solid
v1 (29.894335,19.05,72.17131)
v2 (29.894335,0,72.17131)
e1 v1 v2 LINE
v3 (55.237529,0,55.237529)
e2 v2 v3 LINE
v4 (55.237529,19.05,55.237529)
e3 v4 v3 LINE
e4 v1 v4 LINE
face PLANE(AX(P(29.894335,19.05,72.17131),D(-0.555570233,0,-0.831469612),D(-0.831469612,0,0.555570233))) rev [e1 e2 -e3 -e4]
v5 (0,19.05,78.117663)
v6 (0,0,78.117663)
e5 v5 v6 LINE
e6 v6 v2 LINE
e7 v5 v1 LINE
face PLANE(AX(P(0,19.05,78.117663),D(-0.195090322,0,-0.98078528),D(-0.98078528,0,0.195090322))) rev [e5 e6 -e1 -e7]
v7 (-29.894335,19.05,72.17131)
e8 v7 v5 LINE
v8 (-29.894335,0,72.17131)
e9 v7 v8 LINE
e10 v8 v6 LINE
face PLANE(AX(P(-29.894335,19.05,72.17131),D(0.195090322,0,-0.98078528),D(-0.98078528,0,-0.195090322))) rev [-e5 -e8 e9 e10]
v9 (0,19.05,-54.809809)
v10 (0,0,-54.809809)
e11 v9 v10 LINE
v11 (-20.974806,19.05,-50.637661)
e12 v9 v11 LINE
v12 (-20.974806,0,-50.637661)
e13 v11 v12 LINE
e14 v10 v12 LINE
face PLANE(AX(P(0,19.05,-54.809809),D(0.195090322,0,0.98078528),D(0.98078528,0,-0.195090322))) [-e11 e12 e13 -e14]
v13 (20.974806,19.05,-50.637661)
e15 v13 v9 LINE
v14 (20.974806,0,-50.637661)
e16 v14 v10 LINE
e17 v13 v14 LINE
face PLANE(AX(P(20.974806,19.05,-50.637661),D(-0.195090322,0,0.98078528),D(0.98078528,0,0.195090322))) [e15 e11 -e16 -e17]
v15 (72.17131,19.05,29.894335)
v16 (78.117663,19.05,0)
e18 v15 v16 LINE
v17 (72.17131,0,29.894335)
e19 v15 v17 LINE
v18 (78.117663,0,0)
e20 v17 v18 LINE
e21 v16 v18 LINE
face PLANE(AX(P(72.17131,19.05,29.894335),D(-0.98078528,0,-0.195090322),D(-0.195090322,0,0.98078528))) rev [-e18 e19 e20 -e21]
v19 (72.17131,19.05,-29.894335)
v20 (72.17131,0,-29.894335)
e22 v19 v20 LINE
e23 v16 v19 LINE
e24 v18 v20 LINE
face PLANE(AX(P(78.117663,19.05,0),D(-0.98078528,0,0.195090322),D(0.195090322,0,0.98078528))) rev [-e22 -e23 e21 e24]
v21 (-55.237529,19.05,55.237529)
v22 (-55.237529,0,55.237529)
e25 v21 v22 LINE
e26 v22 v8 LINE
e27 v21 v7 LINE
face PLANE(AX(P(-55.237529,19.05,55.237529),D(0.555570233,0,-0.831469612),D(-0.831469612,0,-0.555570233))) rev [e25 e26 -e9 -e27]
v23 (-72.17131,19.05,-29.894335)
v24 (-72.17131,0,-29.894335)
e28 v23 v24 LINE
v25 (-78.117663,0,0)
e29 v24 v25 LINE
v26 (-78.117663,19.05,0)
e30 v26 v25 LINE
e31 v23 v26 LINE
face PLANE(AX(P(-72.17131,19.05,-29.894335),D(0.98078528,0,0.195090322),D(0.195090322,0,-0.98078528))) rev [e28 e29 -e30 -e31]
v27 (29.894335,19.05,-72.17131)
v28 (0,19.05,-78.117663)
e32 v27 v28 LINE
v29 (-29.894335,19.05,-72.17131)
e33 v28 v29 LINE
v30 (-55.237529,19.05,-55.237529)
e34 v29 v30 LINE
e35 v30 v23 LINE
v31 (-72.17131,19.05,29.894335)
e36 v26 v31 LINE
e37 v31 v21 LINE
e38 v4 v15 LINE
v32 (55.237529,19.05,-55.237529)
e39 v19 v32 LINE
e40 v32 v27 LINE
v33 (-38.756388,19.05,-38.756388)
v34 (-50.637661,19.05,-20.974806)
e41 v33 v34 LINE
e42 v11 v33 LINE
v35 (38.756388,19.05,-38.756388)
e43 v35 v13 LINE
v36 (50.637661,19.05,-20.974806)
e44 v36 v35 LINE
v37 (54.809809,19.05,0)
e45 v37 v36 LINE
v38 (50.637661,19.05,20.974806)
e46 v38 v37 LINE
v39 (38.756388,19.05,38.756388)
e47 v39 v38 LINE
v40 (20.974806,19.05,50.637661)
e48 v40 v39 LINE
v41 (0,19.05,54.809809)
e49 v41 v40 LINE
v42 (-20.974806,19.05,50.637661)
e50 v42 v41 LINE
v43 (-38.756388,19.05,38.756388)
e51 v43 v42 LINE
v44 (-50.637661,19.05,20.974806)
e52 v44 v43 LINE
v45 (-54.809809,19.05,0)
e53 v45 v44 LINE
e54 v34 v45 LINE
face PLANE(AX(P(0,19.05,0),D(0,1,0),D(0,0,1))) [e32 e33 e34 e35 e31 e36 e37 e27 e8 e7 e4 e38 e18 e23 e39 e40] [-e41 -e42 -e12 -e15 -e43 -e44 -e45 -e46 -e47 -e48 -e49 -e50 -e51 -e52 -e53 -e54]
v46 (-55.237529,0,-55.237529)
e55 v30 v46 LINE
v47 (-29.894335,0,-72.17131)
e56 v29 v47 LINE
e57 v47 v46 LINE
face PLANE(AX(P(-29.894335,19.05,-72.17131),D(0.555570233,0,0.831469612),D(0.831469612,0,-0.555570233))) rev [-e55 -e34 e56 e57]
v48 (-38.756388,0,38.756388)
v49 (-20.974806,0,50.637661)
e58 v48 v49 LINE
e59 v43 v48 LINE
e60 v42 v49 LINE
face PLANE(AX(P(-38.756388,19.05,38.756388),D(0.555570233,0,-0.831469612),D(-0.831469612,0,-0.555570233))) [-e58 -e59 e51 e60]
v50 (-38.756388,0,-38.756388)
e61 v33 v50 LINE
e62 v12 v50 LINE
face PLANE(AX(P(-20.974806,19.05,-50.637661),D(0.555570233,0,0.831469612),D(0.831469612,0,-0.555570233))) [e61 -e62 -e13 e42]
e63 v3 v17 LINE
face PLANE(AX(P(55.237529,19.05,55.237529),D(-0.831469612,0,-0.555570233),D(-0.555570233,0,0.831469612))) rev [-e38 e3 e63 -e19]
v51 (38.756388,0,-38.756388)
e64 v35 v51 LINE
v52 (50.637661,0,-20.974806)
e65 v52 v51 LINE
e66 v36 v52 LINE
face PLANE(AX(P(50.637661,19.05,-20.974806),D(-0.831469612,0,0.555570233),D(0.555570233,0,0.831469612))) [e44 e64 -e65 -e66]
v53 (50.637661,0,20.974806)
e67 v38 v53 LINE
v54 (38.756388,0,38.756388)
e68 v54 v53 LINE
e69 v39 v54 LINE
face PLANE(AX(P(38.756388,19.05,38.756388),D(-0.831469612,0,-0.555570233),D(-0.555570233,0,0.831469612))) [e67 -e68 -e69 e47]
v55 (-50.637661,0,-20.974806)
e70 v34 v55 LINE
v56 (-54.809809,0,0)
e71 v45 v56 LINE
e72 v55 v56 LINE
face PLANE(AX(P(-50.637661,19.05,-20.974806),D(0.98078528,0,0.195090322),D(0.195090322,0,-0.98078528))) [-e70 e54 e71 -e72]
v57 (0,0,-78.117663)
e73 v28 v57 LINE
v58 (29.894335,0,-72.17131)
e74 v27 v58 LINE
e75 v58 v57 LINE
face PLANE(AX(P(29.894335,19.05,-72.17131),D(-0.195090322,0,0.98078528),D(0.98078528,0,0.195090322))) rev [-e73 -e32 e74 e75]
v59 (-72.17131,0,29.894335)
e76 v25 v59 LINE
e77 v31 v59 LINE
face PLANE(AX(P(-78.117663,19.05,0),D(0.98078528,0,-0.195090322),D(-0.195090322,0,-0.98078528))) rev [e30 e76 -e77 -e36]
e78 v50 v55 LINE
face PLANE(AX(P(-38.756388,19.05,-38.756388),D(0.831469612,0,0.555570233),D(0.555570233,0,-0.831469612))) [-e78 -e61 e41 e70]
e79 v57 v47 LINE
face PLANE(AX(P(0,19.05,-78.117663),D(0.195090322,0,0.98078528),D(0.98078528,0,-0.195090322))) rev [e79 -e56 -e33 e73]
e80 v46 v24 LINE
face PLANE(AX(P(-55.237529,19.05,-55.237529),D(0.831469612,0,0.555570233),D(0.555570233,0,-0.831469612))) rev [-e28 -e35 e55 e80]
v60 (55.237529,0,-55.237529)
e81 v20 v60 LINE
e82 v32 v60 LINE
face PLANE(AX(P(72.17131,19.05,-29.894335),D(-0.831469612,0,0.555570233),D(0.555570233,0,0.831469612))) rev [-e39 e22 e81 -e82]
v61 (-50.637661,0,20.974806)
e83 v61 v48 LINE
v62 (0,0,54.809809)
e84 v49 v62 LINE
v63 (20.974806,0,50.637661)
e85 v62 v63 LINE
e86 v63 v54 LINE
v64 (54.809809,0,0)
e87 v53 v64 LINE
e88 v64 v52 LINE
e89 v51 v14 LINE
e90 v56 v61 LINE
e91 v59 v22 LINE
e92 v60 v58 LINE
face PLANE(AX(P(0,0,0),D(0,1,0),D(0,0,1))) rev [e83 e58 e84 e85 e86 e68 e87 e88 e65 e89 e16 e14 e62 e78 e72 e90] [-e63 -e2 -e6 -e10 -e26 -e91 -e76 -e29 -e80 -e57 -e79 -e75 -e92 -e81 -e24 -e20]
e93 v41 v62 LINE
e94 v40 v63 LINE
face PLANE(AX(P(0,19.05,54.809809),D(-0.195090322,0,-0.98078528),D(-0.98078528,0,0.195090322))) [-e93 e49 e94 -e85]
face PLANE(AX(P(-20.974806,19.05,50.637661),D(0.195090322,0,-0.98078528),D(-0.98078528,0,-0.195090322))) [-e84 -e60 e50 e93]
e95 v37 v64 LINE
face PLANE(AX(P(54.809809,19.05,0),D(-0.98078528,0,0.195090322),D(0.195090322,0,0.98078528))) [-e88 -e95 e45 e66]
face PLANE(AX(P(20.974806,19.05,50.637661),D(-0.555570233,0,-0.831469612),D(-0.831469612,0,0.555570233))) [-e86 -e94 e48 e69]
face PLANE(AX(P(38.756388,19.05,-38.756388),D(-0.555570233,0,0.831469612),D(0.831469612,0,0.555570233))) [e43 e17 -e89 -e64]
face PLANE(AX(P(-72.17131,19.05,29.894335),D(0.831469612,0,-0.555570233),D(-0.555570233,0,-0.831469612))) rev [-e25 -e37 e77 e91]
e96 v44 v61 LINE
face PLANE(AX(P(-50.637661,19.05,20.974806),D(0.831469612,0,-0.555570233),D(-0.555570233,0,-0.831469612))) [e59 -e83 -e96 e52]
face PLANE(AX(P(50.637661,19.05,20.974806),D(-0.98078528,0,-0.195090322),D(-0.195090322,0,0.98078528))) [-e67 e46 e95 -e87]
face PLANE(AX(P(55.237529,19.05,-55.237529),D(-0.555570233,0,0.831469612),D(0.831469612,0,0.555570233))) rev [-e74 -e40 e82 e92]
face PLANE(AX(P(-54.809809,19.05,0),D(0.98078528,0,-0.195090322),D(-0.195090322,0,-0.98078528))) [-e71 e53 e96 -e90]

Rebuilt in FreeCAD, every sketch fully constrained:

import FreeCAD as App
import Part
import Sketcher
from FreeCAD import Vector
Q = App.Units.Quantity

doc = App.newDocument("Part")
body = doc.addObject("PartDesign::Body", "Body")

sketch1 = body.newObject("Sketcher::SketchObject", "Sketch")
sketch1.AttachmentSupport = (doc.getObject("XZ_Plane"), [""])
sketch1.MapMode = "FlatFace"
sketch1.addGeometry([
    Part.LineSegment(Vector(78, 0, 0), Vector(72, -30, 0)),
    Part.LineSegment(Vector(72, -30, 0), Vector(55, -55, 0)),
    Part.LineSegment(Vector(55, -55, 0), Vector(30, -72, 0)),
    Part.LineSegment(Vector(30, -72, 0), Vector(0, -78, 0)),
    Part.LineSegment(Vector(0, -78, 0), Vector(-30, -72, 0)),
    Part.LineSegment(Vector(-30, -72, 0), Vector(-55, -55, 0)),
    Part.LineSegment(Vector(-55, -55, 0), Vector(-72, -30, 0)),
    Part.LineSegment(Vector(-72, -30, 0), Vector(-78, 0, 0)),
    Part.LineSegment(Vector(-78, 0, 0), Vector(-72, 30, 0)),
    Part.LineSegment(Vector(-72, 30, 0), Vector(-55, 55, 0)),
    Part.LineSegment(Vector(-55, 55, 0), Vector(-30, 72, 0)),
    Part.LineSegment(Vector(-30, 72, 0), Vector(0, 78, 0)),
    Part.LineSegment(Vector(0, 78, 0), Vector(30, 72, 0)),
    Part.LineSegment(Vector(30, 72, 0), Vector(55, 55, 0)),
    Part.LineSegment(Vector(55, 55, 0), Vector(72, 30, 0)),
    Part.LineSegment(Vector(72, 30, 0), Vector(78, 0, 0)),
    Part.LineSegment(Vector(51, -21, 0), Vector(55, 0, 0)),
    Part.LineSegment(Vector(55, 0, 0), Vector(51, 21, 0)),
    Part.LineSegment(Vector(51, 21, 0), Vector(39, 39, 0)),
    Part.LineSegment(Vector(39, 39, 0), Vector(21, 51, 0)),
    Part.LineSegment(Vector(21, 51, 0), Vector(0, 55, 0)),
    Part.LineSegment(Vector(0, 55, 0), Vector(-21, 51, 0)),
    Part.LineSegment(Vector(-21, 51, 0), Vector(-39, 39, 0)),
    Part.LineSegment(Vector(-39, 39, 0), Vector(-51, 21, 0)),
    Part.LineSegment(Vector(-51, 21, 0), Vector(-55, 0, 0)),
    Part.LineSegment(Vector(-55, 0, 0), Vector(-51, -21, 0)),
    Part.LineSegment(Vector(-51, -21, 0), Vector(-39, -39, 0)),
    Part.LineSegment(Vector(-39, -39, 0), Vector(-21, -51, 0)),
    Part.LineSegment(Vector(-21, -51, 0), Vector(0, -55, 0)),
    Part.LineSegment(Vector(0, -55, 0), Vector(21, -51, 0)),
    Part.LineSegment(Vector(21, -51, 0), Vector(39, -39, 0)),
    Part.LineSegment(Vector(39, -39, 0), Vector(51, -21, 0)),
], False)
sketch1.addConstraint([
    Sketcher.Constraint("Coincident", 0, 2, 1, 1),
    Sketcher.Constraint("Coincident", 1, 2, 2, 1),
    Sketcher.Constraint("Coincident", 2, 2, 3, 1),
    Sketcher.Constraint("Coincident", 3, 2, 4, 1),
    Sketcher.Constraint("Coincident", 4, 2, 5, 1),
    Sketcher.Constraint("Coincident", 5, 2, 6, 1),
    Sketcher.Constraint("Coincident", 6, 2, 7, 1),
    Sketcher.Constraint("Coincident", 7, 2, 8, 1),
    Sketcher.Constraint("Coincident", 8, 2, 9, 1),
    Sketcher.Constraint("Coincident", 9, 2, 10, 1),
    Sketcher.Constraint("Coincident", 10, 2, 11, 1),
    Sketcher.Constraint("Coincident", 11, 2, 12, 1),
    Sketcher.Constraint("Coincident", 12, 2, 13, 1),
    Sketcher.Constraint("Coincident", 13, 2, 14, 1),
    Sketcher.Constraint("Coincident", 14, 2, 15, 1),
    Sketcher.Constraint("Coincident", 15, 2, 0, 1),
    Sketcher.Constraint("Coincident", 16, 2, 17, 1),
    Sketcher.Constraint("Coincident", 17, 2, 18, 1),
    Sketcher.Constraint("Coincident", 18, 2, 19, 1),
    Sketcher.Constraint("Coincident", 19, 2, 20, 1),
    Sketcher.Constraint("Coincident", 20, 2, 21, 1),
    Sketcher.Constraint("Coincident", 21, 2, 22, 1),
    Sketcher.Constraint("Coincident", 22, 2, 23, 1),
    Sketcher.Constraint("Coincident", 23, 2, 24, 1),
    Sketcher.Constraint("Coincident", 24, 2, 25, 1),
    Sketcher.Constraint("Coincident", 25, 2, 26, 1),
    Sketcher.Constraint("Coincident", 26, 2, 27, 1),
    Sketcher.Constraint("Coincident", 27, 2, 28, 1),
    Sketcher.Constraint("Coincident", 28, 2, 29, 1),
    Sketcher.Constraint("Coincident", 29, 2, 30, 1),
    Sketcher.Constraint("Coincident", 30, 2, 31, 1),
    Sketcher.Constraint("Coincident", 31, 2, 16, 1),
    Sketcher.Constraint("Symmetric", 0, 2, 8, 2, -1, 1),
    Sketcher.Constraint("Symmetric", 1, 2, 9, 2, -1, 1),
    Sketcher.Constraint("Symmetric", 2, 2, 10, 2, -1, 1),
    Sketcher.Constraint("Symmetric", 3, 2, 11, 2, -1, 1),
    Sketcher.Constraint("Symmetric", 4, 2, 12, 2, -1, 1),
    Sketcher.Constraint("Symmetric", 5, 2, 13, 2, -1, 1),
    Sketcher.Constraint("Symmetric", 6, 2, 14, 2, -1, 1),
    Sketcher.Constraint("Symmetric", 7, 2, 15, 2, -1, 1),
    Sketcher.Constraint("Symmetric", 16, 2, 24, 2, -1, 1),
    Sketcher.Constraint("Symmetric", 17, 2, 25, 2, -1, 1),
    Sketcher.Constraint("Symmetric", 18, 2, 26, 2, -1, 1),
    Sketcher.Constraint("Symmetric", 19, 2, 27, 2, -1, 1),
    Sketcher.Constraint("Symmetric", 20, 2, 28, 2, -1, 1),
    Sketcher.Constraint("Symmetric", 21, 2, 29, 2, -1, 1),
    Sketcher.Constraint("Symmetric", 22, 2, 30, 2, -1, 1),
    Sketcher.Constraint("Symmetric", 23, 2, 31, 2, -1, 1),
    Sketcher.Constraint("Symmetric", 2, 2, 4, 2, -2),
    Sketcher.Constraint("Symmetric", 1, 2, 5, 2, -2),
    Sketcher.Constraint("Symmetric", 0, 2, 6, 2, -2),
    Sketcher.Constraint("Symmetric", 19, 2, 21, 2, -2),
    Sketcher.Constraint("Symmetric", 18, 2, 22, 2, -2),
    Sketcher.Constraint("Symmetric", 17, 2, 23, 2, -2),
    Sketcher.Constraint("PointOnObject", 3, 2, -2),
    Sketcher.Constraint("PointOnObject", 7, 2, -1),
    Sketcher.Constraint("PointOnObject", 16, 2, -1),
    Sketcher.Constraint("PointOnObject", 20, 2, -2),
    Sketcher.Constraint("Perpendicular", 0, 4),
    Sketcher.Constraint("Perpendicular", 1, 5),
    Sketcher.Constraint("Perpendicular", 12, 16),
    Sketcher.Constraint("Parallel", 14, 18),
    Sketcher.Constraint("Parallel", 13, 19),
    Sketcher.Constraint("Perpendicular", 16, 20),
    Sketcher.Constraint("Equal", 0, 1),
    Sketcher.Constraint("Equal", 1, 2),
    Sketcher.Constraint("Equal", 2, 3),
    Sketcher.Constraint("Equal", 17, 18),
    Sketcher.Constraint("Equal", 18, 19),
    Sketcher.Constraint("Equal", 19, 20),
    Sketcher.Constraint("Distance", 0, Q("1.2 in")),
    Sketcher.Constraint("Angle", 0, Q("-101.25 deg")),
    Sketcher.Constraint("Angle", 1, Q("-123.75 deg")),
    Sketcher.Constraint("DistanceX", 16, 2, 0, 2, 17.361501),
])
pad1 = body.newObject("PartDesign::Pad", "Pad")
pad1.Profile = sketch1
pad1.Length = Q("0.75 in")
pad1.Reversed = True

doc.recompute()
